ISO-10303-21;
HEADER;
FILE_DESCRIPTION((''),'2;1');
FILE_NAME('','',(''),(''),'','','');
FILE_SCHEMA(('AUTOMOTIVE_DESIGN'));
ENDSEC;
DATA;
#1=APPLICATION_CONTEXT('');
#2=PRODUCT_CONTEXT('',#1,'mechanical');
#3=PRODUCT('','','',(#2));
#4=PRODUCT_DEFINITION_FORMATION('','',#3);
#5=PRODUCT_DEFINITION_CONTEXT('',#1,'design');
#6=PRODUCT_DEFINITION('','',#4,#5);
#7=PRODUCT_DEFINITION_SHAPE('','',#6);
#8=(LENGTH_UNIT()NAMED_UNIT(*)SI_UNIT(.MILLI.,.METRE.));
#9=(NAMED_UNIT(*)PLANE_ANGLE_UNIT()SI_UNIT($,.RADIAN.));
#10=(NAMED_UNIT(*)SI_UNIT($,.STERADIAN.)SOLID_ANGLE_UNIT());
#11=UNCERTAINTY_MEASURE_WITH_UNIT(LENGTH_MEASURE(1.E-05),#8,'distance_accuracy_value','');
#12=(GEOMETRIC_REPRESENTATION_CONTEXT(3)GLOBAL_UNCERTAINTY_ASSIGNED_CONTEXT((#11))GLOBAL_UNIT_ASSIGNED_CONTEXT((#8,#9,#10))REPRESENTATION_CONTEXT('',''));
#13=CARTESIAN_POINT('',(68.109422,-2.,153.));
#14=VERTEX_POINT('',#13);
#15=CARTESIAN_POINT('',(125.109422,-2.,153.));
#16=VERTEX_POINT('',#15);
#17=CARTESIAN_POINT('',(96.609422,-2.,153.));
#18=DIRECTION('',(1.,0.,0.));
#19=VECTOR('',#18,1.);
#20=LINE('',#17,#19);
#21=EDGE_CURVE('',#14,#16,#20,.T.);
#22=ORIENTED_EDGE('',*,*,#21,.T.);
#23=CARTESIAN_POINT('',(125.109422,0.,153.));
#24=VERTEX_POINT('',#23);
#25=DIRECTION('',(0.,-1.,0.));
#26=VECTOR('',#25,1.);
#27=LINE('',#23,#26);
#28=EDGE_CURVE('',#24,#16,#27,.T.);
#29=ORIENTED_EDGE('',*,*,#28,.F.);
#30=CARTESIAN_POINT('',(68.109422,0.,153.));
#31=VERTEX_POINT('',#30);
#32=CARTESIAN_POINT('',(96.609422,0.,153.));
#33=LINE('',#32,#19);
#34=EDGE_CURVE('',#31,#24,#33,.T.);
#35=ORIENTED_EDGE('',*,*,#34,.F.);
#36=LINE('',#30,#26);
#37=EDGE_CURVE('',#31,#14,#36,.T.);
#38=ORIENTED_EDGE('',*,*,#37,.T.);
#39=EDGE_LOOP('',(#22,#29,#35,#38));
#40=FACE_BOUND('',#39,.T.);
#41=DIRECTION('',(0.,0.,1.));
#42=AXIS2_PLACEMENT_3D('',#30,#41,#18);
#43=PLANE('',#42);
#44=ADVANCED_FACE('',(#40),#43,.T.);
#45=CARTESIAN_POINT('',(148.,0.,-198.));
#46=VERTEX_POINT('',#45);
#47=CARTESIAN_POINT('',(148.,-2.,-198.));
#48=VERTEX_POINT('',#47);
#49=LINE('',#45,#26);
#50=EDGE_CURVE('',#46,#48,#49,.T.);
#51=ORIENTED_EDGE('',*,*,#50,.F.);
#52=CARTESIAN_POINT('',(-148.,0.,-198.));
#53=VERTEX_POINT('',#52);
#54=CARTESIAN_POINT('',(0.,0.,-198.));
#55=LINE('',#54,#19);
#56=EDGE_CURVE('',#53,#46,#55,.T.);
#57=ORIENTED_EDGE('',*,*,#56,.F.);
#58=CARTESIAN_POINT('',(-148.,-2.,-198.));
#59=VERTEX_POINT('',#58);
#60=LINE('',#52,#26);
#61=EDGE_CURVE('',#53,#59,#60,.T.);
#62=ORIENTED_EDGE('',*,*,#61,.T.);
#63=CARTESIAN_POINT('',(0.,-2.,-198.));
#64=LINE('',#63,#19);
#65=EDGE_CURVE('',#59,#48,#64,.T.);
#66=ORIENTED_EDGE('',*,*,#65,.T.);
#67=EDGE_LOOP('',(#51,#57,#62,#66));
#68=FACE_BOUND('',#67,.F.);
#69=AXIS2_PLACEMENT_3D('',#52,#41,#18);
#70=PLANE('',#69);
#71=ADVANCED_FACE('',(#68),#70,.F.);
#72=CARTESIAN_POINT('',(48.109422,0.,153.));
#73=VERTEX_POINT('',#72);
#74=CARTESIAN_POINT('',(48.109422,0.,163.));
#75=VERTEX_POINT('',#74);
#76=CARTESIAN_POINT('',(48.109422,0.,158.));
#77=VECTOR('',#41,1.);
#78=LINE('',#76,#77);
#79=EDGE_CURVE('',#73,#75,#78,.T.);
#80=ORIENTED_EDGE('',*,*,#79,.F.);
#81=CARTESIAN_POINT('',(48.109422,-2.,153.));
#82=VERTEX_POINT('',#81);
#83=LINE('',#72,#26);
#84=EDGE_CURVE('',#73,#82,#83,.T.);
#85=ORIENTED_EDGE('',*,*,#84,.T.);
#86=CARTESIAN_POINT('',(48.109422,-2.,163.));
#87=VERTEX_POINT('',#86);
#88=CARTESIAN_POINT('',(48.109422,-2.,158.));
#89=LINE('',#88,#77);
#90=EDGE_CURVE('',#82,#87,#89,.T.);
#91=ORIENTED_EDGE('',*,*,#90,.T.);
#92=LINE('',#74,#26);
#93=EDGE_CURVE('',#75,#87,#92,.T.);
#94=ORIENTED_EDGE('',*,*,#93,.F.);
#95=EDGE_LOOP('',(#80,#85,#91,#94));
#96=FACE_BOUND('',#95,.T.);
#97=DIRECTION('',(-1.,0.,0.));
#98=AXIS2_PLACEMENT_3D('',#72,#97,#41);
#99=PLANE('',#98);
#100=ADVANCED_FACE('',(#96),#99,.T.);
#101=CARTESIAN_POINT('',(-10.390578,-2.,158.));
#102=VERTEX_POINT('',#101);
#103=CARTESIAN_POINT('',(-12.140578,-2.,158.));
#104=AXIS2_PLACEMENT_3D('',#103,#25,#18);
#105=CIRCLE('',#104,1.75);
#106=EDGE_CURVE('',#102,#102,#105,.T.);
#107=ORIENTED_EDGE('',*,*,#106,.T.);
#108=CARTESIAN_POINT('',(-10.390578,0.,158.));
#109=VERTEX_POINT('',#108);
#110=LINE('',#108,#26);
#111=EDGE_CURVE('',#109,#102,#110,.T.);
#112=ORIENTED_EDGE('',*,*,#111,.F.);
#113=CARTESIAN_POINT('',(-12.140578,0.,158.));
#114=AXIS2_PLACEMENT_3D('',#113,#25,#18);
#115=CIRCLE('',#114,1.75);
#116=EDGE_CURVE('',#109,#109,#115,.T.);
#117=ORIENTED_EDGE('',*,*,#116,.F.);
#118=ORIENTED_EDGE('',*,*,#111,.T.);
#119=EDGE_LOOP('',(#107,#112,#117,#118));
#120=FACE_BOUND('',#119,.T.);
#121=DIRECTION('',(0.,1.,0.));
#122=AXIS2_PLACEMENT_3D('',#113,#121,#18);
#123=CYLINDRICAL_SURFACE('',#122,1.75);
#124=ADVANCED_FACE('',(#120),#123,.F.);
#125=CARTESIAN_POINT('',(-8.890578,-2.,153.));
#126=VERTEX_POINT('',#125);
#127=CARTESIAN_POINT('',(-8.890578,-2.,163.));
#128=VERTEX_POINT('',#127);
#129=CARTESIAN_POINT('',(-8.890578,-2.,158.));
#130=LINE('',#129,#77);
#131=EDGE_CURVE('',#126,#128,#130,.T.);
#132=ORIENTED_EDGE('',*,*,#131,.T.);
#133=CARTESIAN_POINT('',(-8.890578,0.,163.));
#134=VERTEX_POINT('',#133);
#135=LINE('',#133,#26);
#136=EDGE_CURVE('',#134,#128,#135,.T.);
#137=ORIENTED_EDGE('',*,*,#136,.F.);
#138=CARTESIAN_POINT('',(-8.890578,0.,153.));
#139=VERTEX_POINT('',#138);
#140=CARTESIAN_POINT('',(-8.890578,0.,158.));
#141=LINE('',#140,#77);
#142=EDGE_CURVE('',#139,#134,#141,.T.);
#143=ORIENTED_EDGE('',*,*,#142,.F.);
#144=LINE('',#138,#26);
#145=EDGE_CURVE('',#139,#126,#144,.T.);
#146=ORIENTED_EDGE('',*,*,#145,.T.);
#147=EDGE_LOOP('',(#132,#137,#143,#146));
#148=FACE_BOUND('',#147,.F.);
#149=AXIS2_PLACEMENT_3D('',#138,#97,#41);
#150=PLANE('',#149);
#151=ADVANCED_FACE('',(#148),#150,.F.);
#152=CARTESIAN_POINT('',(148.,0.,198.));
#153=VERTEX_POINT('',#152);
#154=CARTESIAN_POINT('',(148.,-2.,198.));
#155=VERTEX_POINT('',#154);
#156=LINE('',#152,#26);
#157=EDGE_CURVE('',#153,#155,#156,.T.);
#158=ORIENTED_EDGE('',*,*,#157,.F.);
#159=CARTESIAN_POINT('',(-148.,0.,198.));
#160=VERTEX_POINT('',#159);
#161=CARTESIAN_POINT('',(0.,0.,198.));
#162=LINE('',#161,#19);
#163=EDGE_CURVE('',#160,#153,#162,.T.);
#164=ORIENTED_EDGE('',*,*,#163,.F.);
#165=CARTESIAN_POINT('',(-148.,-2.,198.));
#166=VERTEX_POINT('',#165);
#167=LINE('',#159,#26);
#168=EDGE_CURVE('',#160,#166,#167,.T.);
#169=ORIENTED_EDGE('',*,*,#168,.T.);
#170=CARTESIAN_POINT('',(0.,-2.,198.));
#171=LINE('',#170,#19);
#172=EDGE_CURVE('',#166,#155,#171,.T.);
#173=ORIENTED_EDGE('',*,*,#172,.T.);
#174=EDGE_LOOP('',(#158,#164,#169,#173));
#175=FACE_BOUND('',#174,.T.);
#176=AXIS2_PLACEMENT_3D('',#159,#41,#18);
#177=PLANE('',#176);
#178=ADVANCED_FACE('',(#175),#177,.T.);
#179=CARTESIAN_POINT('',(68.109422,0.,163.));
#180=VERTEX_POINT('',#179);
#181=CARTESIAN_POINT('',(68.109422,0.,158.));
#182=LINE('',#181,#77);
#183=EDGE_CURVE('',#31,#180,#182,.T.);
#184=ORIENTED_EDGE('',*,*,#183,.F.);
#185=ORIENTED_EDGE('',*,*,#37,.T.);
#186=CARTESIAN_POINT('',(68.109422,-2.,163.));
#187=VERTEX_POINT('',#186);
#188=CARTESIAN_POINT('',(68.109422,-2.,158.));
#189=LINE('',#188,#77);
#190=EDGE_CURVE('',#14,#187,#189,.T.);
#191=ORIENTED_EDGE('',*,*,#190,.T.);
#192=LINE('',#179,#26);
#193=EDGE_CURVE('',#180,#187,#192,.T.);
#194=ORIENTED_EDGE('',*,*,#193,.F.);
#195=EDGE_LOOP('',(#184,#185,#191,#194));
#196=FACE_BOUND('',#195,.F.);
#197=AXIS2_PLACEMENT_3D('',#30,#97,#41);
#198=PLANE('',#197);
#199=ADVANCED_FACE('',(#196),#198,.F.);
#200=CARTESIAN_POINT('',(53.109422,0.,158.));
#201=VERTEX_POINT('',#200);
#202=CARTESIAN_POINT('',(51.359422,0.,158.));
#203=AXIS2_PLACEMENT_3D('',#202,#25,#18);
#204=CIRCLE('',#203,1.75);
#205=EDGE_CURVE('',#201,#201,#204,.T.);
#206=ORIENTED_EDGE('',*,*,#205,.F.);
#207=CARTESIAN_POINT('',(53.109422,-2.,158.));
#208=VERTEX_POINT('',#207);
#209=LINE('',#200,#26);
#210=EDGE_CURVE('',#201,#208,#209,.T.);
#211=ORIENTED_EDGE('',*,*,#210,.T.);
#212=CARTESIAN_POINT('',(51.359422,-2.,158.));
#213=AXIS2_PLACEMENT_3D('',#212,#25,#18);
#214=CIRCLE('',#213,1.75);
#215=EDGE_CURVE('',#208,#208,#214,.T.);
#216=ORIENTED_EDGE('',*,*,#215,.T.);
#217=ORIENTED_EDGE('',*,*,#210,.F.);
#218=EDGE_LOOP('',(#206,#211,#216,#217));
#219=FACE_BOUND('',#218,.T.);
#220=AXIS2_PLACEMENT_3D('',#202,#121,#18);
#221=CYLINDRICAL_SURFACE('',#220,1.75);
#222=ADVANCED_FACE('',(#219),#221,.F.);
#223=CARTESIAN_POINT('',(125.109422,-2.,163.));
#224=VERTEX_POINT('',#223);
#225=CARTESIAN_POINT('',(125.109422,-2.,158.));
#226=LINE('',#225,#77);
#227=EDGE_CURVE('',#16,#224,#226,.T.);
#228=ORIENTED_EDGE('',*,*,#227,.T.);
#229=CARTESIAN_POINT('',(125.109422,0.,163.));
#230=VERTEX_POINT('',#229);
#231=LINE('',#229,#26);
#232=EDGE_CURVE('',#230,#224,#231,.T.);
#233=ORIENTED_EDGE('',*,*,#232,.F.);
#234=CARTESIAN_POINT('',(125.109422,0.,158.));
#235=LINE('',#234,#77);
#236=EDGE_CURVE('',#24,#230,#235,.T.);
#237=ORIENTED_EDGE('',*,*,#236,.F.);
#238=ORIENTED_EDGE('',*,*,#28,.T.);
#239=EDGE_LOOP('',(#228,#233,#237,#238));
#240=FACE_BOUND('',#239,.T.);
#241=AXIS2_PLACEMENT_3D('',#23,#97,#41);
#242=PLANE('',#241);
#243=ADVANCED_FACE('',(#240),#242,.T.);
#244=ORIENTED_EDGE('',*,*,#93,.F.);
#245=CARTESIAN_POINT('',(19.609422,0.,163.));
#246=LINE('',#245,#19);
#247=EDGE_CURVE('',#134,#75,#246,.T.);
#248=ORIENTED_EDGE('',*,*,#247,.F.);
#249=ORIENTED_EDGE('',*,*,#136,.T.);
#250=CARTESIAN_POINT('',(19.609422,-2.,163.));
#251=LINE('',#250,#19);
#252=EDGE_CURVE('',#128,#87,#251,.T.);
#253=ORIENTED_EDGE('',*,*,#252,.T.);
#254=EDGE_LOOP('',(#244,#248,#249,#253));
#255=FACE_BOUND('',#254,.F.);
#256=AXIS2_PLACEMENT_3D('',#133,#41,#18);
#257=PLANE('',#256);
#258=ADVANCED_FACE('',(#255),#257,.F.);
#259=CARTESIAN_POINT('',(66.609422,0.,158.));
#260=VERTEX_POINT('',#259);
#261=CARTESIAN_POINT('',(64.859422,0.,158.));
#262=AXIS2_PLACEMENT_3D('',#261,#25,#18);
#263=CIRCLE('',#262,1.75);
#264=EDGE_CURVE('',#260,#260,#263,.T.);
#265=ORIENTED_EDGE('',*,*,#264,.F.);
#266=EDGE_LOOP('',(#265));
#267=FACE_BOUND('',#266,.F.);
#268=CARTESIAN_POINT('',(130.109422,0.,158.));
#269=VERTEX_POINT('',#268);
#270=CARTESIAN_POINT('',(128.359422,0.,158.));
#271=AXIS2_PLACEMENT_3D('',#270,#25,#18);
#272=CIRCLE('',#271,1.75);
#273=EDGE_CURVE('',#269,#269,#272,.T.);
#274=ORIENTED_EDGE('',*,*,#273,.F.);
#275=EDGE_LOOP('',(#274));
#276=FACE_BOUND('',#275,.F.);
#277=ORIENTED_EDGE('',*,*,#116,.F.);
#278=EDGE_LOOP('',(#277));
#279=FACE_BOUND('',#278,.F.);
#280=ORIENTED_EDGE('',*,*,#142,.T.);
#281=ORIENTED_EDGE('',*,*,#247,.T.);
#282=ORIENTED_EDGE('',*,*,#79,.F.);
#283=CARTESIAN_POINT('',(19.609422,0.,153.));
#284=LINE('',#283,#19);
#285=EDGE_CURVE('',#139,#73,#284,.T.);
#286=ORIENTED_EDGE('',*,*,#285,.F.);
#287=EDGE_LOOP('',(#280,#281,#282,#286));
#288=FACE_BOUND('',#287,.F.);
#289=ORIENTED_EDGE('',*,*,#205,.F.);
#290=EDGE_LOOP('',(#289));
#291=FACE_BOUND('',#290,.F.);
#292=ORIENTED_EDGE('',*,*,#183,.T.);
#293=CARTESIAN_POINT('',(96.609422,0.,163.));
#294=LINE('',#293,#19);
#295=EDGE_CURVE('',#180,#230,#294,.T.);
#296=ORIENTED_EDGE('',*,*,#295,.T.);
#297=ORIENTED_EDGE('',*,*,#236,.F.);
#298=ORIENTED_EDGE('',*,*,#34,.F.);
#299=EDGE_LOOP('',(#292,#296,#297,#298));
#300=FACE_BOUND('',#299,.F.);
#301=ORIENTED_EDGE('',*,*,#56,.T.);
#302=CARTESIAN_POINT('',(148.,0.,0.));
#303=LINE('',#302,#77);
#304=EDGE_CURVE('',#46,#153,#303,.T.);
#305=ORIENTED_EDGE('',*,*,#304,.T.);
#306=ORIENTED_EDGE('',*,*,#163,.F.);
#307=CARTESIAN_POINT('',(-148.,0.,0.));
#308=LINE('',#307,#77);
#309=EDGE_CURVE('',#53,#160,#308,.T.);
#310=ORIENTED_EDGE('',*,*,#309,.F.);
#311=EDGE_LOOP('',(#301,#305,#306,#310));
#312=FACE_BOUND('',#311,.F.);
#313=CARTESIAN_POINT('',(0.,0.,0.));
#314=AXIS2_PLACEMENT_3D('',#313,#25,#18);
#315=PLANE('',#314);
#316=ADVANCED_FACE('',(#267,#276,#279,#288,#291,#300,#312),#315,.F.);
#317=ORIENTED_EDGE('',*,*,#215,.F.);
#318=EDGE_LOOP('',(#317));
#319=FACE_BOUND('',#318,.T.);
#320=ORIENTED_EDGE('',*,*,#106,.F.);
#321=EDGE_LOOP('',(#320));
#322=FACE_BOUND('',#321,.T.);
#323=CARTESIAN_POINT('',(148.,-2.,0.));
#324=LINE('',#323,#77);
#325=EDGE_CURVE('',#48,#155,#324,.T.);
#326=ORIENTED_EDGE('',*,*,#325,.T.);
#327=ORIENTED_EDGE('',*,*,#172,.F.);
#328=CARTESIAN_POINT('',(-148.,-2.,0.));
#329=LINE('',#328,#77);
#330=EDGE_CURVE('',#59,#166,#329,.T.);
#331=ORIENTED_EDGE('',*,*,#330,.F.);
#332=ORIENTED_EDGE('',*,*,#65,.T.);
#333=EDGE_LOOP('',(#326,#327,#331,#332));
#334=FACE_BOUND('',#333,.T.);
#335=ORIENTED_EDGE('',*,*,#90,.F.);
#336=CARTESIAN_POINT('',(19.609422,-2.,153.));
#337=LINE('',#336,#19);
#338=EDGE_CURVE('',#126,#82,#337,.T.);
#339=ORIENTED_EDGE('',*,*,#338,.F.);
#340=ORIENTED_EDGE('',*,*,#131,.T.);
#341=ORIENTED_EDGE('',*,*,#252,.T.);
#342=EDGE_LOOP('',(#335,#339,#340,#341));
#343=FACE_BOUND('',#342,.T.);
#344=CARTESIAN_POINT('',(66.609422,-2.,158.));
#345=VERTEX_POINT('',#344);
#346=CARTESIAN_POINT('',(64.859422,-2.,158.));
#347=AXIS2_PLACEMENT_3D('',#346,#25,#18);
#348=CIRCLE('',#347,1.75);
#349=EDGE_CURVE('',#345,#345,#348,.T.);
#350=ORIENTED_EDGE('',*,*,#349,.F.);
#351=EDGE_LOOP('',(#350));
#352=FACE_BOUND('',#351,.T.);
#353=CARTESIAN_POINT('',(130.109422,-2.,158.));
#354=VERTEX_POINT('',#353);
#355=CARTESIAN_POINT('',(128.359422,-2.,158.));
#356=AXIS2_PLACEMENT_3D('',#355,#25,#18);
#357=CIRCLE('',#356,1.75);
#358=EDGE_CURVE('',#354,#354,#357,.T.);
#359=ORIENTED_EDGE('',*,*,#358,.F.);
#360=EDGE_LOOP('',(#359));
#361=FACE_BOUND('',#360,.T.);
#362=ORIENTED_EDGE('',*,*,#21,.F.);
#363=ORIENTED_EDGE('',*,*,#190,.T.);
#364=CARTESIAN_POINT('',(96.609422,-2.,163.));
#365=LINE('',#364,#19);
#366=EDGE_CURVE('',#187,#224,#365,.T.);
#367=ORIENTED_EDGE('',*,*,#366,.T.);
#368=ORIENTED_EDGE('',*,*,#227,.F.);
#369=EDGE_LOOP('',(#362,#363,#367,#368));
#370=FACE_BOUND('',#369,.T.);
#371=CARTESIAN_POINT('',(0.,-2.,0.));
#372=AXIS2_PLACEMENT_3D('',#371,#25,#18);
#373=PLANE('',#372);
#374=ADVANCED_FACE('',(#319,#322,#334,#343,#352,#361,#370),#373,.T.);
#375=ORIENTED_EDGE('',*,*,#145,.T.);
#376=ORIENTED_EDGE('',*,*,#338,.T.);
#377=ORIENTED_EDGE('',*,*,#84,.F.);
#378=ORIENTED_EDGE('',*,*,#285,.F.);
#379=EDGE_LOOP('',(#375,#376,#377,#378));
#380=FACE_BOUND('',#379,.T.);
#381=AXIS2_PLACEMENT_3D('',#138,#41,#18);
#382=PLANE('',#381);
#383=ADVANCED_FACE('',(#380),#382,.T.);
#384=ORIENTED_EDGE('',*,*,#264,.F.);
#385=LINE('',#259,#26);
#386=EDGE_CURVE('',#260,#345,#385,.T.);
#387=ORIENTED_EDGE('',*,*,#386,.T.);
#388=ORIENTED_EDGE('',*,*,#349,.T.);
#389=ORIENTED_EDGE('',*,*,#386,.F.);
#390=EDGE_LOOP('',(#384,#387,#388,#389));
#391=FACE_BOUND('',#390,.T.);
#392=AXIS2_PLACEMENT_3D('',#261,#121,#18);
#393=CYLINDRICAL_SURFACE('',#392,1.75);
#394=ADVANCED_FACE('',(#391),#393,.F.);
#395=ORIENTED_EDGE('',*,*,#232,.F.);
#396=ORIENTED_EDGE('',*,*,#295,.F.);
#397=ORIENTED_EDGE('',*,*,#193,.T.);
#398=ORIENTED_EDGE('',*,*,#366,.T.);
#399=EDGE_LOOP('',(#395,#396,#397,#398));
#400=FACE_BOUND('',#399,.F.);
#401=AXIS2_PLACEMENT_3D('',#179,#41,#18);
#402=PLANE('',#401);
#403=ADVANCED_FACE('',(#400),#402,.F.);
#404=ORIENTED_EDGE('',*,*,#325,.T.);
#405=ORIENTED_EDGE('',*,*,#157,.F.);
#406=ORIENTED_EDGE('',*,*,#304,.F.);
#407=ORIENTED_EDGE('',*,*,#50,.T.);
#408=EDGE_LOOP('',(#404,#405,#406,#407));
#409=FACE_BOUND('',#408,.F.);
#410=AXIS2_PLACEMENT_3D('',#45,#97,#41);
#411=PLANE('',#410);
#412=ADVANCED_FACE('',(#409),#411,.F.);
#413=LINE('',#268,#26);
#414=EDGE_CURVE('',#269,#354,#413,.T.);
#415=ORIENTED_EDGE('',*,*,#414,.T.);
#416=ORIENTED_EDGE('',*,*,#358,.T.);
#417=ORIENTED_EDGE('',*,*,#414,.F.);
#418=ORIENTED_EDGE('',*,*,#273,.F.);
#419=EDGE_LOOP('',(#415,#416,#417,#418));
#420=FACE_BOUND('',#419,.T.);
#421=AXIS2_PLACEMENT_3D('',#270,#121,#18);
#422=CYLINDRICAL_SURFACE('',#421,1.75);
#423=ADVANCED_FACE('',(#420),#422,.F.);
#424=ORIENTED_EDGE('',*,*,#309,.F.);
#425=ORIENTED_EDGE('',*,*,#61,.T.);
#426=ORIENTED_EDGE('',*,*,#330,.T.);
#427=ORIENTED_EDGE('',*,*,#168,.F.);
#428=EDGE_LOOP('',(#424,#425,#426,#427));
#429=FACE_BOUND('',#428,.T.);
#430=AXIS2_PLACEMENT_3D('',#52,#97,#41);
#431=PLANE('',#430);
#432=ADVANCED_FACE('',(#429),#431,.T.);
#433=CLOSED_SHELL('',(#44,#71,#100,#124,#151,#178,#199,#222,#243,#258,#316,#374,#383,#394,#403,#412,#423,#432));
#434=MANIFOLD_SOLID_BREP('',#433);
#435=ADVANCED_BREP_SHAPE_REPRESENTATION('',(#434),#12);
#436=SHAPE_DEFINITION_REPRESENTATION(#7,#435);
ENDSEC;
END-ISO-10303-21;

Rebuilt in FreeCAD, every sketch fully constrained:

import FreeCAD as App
import Part
import Sketcher

V = App.Vector


def add_polygon(sketch, points):
    """Adds a closed chain of lines whose ends are joined by coincident constraints."""
    first, n = sketch.GeometryCount, len(points)
    for a, b in zip(points, points[1:] + points[:1]):
        sketch.addGeometry(Part.LineSegment(App.Vector(*a, 0), App.Vector(*b, 0)), False)
    for i in range(n):
        sketch.addConstraint(Sketcher.Constraint("Coincident", first + i, 2, first + (i + 1) % n, 1))

doc = App.newDocument("Part")
body = doc.addObject("PartDesign::Body", "Body")

# Sketch on XZ plane
sketch1 = body.newObject("Sketcher::SketchObject", "Sketch")
sketch1.AttachmentSupport = (doc.getObject("XZ_Plane"), [""])
sketch1.MapMode = "FlatFace"
add_polygon(sketch1, [(-148, 198), (-148, -198), (148, -198), (148, 198)])  # lines 0-3
sketch1.addGeometry(Part.Circle(V(-12.1, 158, 0), V(0, 0, 1), 1.8), False)  # 4
add_polygon(sketch1, [(48.1, 153), (-8.9, 153), (-8.9, 163), (48.1, 163)])  # lines 5-8
sketch1.addGeometry(Part.Circle(V(51.4, 158, 0), V(0, 0, 1), 1.8), False)  # 9
sketch1.addGeometry(Part.Circle(V(64.9, 158, 0), V(0, 0, 1), 1.8), False)  # 10
add_polygon(sketch1, [(125.1, 153), (68.1, 153), (68.1, 163), (125.1, 163)])  # lines 11-14
sketch1.addGeometry(Part.Circle(V(128.4, 158, 0), V(0, 0, 1), 1.8), False)  # 15
sketch1.addConstraint([
    Sketcher.Constraint("Vertical", 0),
    Sketcher.Constraint("Horizontal", 1),
    Sketcher.Constraint("Vertical", 2),
    Sketcher.Constraint("Horizontal", 3),
    Sketcher.Constraint("Horizontal", 5),
    Sketcher.Constraint("Vertical", 6),
    Sketcher.Constraint("Horizontal", 7),
    Sketcher.Constraint("Vertical", 8),
    Sketcher.Constraint("Horizontal", 11),
    Sketcher.Constraint("Vertical", 12),
    Sketcher.Constraint("Horizontal", 13),
    Sketcher.Constraint("Vertical", 14),
    Sketcher.Constraint("Equal", 4, 9),
    Sketcher.Constraint("Equal", 9, 10),
    Sketcher.Constraint("Equal", 10, 15),
    Sketcher.Constraint("Symmetric", 0, 2, 2, 2, -1, 1),
    Sketcher.Constraint("Horizontal", 4, 3, 9, 3),
    Sketcher.Constraint("Horizontal", 9, 3, 10, 3),
    Sketcher.Constraint("Horizontal", 10, 3, 15, 3),
    Sketcher.Constraint("Horizontal", 8, 2, 11, 2),
    Sketcher.Constraint("Horizontal", 7, 2, 12, 2),
    Sketcher.Constraint("Equal", 7, 11),
    Sketcher.Constraint("Diameter", 4, 3.5),
    Sketcher.Constraint("DistanceX", 1, 1, 1, 2, 296.0),
    Sketcher.Constraint("DistanceX", 5, 2, 5, 1, 57.0),
    Sketcher.Constraint("DistanceY", 0, 2, 0, 1, 396.0),
    Sketcher.Constraint("DistanceY", 6, 1, 6, 2, 10.0),
    Sketcher.Constraint("DistanceY", -1, 1, 4, 3, 158.0),
    Sketcher.Constraint("DistanceY", -1, 1, 5, 2, 153.0),
    Sketcher.Constraint("DistanceX", 4, 3, 10, 3, 77.0),
    Sketcher.Constraint("DistanceX", 9, 3, 15, 3, 77.0),
    Sketcher.Constraint("DistanceX", 8, 2, 11, 2, 20.0),
    Sketcher.Constraint("DistanceX", 4, 3, 9, 3, 63.5),
    Sketcher.Constraint("DistanceX", 4, 3, 5, 2, 3.25),
    Sketcher.Constraint("DistanceX", -1, 1, 10, 3, 64.859422),
])
pad1 = body.newObject("PartDesign::Pad", "Pad")
pad1.Profile = sketch1
pad1.Length = 2

doc.recompute()
